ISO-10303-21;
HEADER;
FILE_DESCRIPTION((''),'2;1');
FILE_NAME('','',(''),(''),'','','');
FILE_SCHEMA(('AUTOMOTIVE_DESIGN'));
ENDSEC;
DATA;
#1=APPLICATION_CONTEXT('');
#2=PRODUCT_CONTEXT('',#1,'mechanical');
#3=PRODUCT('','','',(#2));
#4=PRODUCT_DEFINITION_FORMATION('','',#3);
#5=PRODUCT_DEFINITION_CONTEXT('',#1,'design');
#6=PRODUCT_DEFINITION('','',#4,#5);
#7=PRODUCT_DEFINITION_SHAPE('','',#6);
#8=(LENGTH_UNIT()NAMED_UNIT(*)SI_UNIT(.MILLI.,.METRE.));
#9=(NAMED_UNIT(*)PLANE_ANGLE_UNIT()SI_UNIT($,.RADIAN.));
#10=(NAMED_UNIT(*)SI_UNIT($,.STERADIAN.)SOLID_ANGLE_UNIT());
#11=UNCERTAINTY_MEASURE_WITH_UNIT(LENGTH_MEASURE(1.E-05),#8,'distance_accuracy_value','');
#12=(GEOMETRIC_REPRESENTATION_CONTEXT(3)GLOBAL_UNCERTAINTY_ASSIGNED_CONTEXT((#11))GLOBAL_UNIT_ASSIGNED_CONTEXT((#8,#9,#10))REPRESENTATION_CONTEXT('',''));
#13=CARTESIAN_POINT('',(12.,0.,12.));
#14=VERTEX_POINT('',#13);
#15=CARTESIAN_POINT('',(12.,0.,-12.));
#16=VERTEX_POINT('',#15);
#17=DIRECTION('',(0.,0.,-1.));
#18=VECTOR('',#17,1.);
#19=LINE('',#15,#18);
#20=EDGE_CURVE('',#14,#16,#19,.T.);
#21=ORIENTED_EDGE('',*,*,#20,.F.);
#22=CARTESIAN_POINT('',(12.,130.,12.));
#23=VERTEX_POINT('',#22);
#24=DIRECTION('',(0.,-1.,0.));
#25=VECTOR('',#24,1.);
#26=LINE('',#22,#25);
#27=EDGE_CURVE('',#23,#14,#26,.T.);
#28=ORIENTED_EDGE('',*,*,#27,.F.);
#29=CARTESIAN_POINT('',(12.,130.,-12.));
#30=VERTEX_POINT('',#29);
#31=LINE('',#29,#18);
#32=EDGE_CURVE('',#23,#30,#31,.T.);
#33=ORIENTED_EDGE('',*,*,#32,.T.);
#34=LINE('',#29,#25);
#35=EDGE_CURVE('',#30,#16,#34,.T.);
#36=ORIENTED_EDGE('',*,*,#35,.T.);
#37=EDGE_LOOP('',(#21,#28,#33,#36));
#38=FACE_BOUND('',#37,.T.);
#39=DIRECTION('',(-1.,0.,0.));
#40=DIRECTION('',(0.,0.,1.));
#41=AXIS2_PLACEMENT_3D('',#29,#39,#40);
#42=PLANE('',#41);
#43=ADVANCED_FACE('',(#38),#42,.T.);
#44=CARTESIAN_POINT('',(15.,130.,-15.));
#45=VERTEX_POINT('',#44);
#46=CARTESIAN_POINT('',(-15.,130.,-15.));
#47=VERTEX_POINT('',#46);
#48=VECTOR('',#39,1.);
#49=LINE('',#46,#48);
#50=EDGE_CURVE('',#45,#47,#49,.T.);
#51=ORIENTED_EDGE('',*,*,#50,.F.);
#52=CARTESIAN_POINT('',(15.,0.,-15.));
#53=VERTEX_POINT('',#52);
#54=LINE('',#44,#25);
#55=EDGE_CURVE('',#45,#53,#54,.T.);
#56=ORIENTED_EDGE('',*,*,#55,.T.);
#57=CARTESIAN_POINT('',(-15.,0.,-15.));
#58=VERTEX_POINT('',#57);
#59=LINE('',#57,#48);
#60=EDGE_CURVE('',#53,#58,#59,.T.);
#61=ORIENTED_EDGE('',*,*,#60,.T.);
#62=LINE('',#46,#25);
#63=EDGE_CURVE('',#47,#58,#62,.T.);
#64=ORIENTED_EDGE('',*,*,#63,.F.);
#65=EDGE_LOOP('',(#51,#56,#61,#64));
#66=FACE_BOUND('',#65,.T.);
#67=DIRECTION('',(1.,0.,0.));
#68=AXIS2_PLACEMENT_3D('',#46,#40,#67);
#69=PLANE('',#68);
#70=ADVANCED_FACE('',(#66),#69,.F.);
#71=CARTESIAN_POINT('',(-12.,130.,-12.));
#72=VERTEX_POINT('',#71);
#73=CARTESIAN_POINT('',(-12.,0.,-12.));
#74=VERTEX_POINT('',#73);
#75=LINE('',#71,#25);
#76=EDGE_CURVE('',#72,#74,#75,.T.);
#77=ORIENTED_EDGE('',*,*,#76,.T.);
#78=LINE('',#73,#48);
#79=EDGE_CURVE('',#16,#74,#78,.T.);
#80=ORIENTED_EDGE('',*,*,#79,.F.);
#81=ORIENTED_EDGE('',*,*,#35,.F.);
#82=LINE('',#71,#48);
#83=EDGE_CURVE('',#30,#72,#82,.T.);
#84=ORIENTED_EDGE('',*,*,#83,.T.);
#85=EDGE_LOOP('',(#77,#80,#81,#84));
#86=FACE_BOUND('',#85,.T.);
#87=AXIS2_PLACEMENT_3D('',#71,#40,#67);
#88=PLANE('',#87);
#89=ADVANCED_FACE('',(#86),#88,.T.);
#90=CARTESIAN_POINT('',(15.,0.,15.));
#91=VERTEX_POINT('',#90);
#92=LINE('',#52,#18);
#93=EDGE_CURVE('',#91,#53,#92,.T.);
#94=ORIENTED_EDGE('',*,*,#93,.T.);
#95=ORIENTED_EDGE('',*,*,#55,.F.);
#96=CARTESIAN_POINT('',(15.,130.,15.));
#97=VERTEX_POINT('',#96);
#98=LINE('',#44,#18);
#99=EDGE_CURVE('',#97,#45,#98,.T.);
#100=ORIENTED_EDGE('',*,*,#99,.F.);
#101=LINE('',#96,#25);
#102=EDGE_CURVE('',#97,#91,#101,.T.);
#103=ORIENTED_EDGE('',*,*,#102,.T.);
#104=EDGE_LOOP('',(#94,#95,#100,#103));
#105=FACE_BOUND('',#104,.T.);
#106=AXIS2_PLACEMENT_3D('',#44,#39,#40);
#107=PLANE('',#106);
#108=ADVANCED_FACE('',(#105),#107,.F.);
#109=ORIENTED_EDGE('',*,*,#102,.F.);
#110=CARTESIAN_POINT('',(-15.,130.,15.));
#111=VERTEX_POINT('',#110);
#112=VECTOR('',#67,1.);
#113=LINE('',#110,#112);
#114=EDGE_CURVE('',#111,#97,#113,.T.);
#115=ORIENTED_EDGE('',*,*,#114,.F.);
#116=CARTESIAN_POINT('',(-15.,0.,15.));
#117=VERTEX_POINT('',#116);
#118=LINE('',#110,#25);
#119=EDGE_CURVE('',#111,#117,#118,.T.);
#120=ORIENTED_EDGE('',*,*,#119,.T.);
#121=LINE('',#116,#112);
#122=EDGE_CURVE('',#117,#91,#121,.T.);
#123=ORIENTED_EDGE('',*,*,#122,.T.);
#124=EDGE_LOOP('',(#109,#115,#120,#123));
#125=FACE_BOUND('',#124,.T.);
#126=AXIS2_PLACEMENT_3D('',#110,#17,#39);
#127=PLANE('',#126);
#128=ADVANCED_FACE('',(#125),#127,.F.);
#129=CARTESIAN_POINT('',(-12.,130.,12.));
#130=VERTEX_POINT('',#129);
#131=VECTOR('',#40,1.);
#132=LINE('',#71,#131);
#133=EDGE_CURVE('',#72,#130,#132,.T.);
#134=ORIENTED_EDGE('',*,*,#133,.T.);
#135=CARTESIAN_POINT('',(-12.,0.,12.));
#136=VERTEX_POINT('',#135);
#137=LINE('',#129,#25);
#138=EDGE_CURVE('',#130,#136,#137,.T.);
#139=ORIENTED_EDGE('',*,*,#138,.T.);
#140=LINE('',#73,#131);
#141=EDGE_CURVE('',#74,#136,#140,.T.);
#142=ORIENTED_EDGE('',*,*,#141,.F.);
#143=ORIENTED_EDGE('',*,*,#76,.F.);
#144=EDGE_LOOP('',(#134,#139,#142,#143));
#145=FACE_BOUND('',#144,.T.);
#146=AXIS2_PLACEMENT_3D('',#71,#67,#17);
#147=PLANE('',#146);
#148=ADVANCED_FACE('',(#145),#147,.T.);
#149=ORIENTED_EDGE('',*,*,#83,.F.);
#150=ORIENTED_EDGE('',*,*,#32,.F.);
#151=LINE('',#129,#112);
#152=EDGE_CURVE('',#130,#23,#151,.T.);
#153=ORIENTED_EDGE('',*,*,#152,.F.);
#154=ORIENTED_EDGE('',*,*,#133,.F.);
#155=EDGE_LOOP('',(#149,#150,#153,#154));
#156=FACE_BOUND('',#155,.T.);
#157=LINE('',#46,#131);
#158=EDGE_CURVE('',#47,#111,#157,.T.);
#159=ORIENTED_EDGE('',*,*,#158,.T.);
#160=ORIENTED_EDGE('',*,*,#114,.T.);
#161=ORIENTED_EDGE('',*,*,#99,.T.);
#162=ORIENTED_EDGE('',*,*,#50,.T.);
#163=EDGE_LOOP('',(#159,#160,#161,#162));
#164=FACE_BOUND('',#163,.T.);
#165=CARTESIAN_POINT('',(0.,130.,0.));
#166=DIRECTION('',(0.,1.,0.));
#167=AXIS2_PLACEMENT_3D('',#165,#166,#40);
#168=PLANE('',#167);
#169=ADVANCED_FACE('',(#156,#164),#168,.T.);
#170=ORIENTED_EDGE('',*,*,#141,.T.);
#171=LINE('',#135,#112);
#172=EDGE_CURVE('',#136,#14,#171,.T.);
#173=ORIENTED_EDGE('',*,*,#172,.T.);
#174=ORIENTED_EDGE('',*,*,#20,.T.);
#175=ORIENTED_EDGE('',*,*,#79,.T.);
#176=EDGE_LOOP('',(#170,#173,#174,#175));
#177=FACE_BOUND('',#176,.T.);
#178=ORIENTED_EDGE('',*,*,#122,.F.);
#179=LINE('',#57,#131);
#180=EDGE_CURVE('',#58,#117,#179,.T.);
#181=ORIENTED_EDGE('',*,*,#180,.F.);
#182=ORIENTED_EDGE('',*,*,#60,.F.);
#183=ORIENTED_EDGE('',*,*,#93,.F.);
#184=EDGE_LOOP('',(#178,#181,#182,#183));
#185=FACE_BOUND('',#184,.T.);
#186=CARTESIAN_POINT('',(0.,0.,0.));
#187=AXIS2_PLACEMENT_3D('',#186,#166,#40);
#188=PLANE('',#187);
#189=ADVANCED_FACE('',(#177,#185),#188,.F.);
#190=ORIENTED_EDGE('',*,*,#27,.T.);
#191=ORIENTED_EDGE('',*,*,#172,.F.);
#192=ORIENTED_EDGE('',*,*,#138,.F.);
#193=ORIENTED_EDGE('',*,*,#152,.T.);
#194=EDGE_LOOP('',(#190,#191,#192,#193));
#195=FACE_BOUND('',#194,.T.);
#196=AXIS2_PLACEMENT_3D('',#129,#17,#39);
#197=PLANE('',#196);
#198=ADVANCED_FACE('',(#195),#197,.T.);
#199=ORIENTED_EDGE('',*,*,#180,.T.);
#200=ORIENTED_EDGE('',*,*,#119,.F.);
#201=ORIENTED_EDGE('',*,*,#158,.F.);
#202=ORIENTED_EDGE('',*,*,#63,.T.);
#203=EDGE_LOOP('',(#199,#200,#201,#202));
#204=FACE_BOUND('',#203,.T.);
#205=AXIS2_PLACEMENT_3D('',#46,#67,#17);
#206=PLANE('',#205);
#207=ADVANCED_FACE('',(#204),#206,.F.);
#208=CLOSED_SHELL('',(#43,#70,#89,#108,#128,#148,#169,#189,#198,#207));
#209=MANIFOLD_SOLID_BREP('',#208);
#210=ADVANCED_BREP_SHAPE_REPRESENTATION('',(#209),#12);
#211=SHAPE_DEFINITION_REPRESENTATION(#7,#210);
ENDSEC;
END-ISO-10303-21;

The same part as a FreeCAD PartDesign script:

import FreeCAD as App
import Part
import Sketcher
from FreeCAD import Vector
Q = App.Units.Quantity

doc = App.newDocument("Part")
params = doc.addObject("Spreadsheet::Sheet", "Params")
for row, (alias, value) in enumerate([
    ("sketch1_width", "30 mm"),
    ("sketch1_width2", "24 mm"),
    ("pad1_length", "130 mm"),
], start=1):
    params.set(f"A{row}", alias)
    params.set(f"B{row}", "=" + value)
    params.setAlias(f"B{row}", alias)

body = doc.addObject("PartDesign::Body", "Body")

# Sketch on XZ plane
sketch1 = body.newObject("Sketcher::SketchObject", "Sketch")
sketch1.AttachmentSupport = (doc.getObject("XZ_Plane"), [""])
sketch1.MapMode = "FlatFace"
sketch1.addGeometry([
    Part.LineSegment(Vector(-15, -15, 0), Vector(-15, 15, 0)),  # 0
    Part.LineSegment(Vector(-15, 15, 0), Vector(15, 15, 0)),  # 1
    Part.LineSegment(Vector(15, 15, 0), Vector(15, -15, 0)),  # 2
    Part.LineSegment(Vector(15, -15, 0), Vector(-15, -15, 0)),  # 3
    Part.LineSegment(Vector(12, 12, 0), Vector(-12, 12, 0)),  # 4
    Part.LineSegment(Vector(-12, 12, 0), Vector(-12, -12, 0)),  # 5
    Part.LineSegment(Vector(-12, -12, 0), Vector(12, -12, 0)),  # 6
    Part.LineSegment(Vector(12, -12, 0), Vector(12, 12, 0)),  # 7
], False)
sketch1.addConstraint([
    Sketcher.Constraint("Coincident", 0, 2, 1, 1),
    Sketcher.Constraint("Coincident", 1, 2, 2, 1),
    Sketcher.Constraint("Coincident", 2, 2, 3, 1),
    Sketcher.Constraint("Coincident", 3, 2, 0, 1),
    Sketcher.Constraint("Coincident", 4, 2, 5, 1),
    Sketcher.Constraint("Coincident", 5, 2, 6, 1),
    Sketcher.Constraint("Coincident", 6, 2, 7, 1),
    Sketcher.Constraint("Coincident", 7, 2, 4, 1),
    Sketcher.Constraint("Vertical", 0),
    Sketcher.Constraint("Horizontal", 1),
    Sketcher.Constraint("Vertical", 2),
    Sketcher.Constraint("Horizontal", 3),
    Sketcher.Constraint("Horizontal", 4),
    Sketcher.Constraint("Vertical", 5),
    Sketcher.Constraint("Horizontal", 6),
    Sketcher.Constraint("Vertical", 7),
    Sketcher.Constraint("Symmetric", 0, 2, 2, 2, -1, 1),
    Sketcher.Constraint("Symmetric", 4, 2, 6, 2, -1, 1),
    Sketcher.Constraint("Equal", 3, 0),
    Sketcher.Constraint("Equal", 6, 5),
    Sketcher.Constraint("DistanceX", 1, 1, 1, 2, Q("30 mm")),
    Sketcher.Constraint("DistanceX", 4, 2, 4, 1, Q("24 mm")),
])
sketch1.setExpression("Constraints[20]", "Params.sketch1_width")
sketch1.setExpression("Constraints[21]", "Params.sketch1_width2")
pad1 = body.newObject("PartDesign::Pad", "Pad")
pad1.Profile = sketch1
pad1.setExpression("Length", "Params.pad1_length")
pad1.Reversed = True

doc.recompute()
